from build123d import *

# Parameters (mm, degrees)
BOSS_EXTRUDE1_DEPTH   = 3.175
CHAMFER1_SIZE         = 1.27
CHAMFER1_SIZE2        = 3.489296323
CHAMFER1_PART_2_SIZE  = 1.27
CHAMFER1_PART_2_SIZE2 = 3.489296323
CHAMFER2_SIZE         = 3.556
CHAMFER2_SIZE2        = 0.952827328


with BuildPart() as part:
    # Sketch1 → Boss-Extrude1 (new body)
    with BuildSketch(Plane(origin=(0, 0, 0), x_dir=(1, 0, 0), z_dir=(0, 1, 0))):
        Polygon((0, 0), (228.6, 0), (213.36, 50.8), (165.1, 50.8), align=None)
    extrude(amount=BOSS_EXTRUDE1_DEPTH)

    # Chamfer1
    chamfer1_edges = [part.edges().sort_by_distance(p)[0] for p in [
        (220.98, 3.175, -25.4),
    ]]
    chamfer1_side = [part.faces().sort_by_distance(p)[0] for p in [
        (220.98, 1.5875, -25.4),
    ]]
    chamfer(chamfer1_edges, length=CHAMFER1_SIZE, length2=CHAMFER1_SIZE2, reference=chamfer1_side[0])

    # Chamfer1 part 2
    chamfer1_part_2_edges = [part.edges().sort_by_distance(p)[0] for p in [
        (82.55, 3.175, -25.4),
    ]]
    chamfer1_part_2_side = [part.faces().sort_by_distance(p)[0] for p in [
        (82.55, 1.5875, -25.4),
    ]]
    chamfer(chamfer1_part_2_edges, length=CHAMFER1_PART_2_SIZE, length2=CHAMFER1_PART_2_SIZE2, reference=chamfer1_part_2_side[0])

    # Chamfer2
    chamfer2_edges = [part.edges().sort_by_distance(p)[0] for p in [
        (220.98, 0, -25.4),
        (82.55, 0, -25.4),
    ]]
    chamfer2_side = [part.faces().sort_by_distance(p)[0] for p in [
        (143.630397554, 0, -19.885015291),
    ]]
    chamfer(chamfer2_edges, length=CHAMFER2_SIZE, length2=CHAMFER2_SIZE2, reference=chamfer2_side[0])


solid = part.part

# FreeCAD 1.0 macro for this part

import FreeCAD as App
import Part
import Sketcher

V = App.Vector
Q = App.Units.Quantity


def edges_at(feature, points):
    """Names of the edges that pass closest to the given points."""
    edges = feature.Shape.Edges
    near = lambda p: min(range(len(edges)), key=lambda i: edges[i].distToShape(Part.Vertex(*p))[0])
    return sorted({f"Edge{near(p) + 1}" for p in points})


def add_polygon(sketch, points):
    """Adds a closed chain of lines whose ends are joined by coincident constraints."""
    first, n = sketch.GeometryCount, len(points)
    for a, b in zip(points, points[1:] + points[:1]):
        sketch.addGeometry(Part.LineSegment(App.Vector(*a, 0), App.Vector(*b, 0)), False)
    for i in range(n):
        sketch.addConstraint(Sketcher.Constraint("Coincident", first + i, 2, first + (i + 1) % n, 1))

doc = App.newDocument("Part")
body = doc.addObject("PartDesign::Body", "Body")

sketch1 = doc.addObject("Sketcher::SketchObject", "Sketch")
body.addObject(sketch1)
sketch1.AttachmentSupport = (doc.XZ_Plane, [""])
sketch1.MapMode = "FlatFace"
add_polygon(sketch1, [(0, 0), (229, 0), (213, -51), (165, -51)])
sketch1.addConstraint(Sketcher.Constraint("Horizontal", 0))
sketch1.addConstraint(Sketcher.Constraint("Horizontal", 2))
sketch1.addConstraint(Sketcher.Constraint("Coincident", 3, 2, -1, 1))
sketch1.addConstraint(Sketcher.Constraint("DistanceX", 0, 1, 0, 2, Q("9 in")))
sketch1.addConstraint(Sketcher.Constraint("DistanceX", 2, 2, 2, 1, Q("1.9 in")))
sketch1.addConstraint(Sketcher.Constraint("DistanceY", 1, 2, -1, 1, Q("2 in")))
sketch1.addConstraint(Sketcher.Constraint("DistanceX", -1, 1, 1, 2, Q("8.4 in")))
pad1 = doc.addObject("PartDesign::Pad", "Pad")
body.addObject(pad1)
pad1.Profile = sketch1
pad1.Length = Q("0.125 in")
pad1.Reversed = True
doc.recompute()

chamfer = doc.addObject("PartDesign::Chamfer", "Chamfer")
body.addObject(chamfer)
chamfer.Base = (pad1, edges_at(pad1, [(220.98, 3.175, -25.4)]))
chamfer.ChamferType = "Two distances"
chamfer.Size = Q("0.05 in")
chamfer.Size2 = 3.489296
doc.recompute()

chamfer2 = doc.addObject("PartDesign::Chamfer", "Chamfer001")
body.addObject(chamfer2)
chamfer2.Base = (chamfer, edges_at(chamfer, [(82.55, 3.175, -25.4)]))
chamfer2.ChamferType = "Two distances"
chamfer2.Size = Q("0.05 in")
chamfer2.Size2 = 3.489296
chamfer2.FlipDirection = True
doc.recompute()

chamfer3 = doc.addObject("PartDesign::Chamfer", "Chamfer002")
body.addObject(chamfer3)
chamfer3.Base = (chamfer2, edges_at(chamfer2, [(220.98, 0, -25.4), (82.55, 0, -25.4)]))
chamfer3.ChamferType = "Two distances"
chamfer3.Size = Q("0.14 in")
chamfer3.Size2 = 0.952827
chamfer3.FlipDirection = True

doc.recompute()
